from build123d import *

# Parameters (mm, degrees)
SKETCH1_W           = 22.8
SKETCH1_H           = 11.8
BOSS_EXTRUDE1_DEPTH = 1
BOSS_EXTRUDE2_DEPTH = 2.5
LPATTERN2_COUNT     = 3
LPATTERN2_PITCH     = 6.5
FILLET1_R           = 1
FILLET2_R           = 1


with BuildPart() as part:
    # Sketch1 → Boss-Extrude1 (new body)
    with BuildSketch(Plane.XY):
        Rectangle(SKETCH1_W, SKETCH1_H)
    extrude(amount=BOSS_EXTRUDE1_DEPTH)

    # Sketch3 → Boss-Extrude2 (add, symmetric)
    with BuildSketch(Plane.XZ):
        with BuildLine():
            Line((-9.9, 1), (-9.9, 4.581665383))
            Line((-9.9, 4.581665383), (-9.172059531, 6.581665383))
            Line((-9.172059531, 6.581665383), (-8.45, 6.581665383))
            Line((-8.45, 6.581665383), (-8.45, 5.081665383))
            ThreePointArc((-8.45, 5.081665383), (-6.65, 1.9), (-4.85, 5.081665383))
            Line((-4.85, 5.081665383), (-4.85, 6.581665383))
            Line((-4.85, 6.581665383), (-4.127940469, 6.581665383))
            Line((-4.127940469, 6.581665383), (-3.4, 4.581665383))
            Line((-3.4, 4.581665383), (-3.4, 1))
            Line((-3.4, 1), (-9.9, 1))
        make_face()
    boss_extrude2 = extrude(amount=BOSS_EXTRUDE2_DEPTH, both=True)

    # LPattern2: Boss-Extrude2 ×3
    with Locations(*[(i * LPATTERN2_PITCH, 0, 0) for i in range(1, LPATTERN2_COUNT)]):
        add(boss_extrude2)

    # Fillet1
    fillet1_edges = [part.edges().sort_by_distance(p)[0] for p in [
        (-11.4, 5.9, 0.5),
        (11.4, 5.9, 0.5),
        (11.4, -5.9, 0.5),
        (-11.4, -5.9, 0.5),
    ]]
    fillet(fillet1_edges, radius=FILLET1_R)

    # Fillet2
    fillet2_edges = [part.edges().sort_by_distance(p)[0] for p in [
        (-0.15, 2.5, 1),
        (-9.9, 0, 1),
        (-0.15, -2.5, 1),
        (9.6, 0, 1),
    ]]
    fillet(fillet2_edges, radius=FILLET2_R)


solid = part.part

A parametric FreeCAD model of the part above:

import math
import FreeCAD as App
import Part
import Sketcher
Q = App.Units.Quantity


def edges_at(feature, points):
    """Names of the edges that pass closest to the given points."""
    edges = feature.Shape.Edges
    near = lambda p: min(range(len(edges)), key=lambda i: edges[i].distToShape(Part.Vertex(*p))[0])
    return sorted({f"Edge{near(p) + 1}" for p in points})


def add_polygon(sketch, points):
    """Adds a closed chain of lines whose ends are joined by coincident constraints."""
    first, n = sketch.GeometryCount, len(points)
    for a, b in zip(points, points[1:] + points[:1]):
        sketch.addGeometry(Part.LineSegment(App.Vector(*a, 0), App.Vector(*b, 0)), False)
    for i in range(n):
        sketch.addConstraint(Sketcher.Constraint("Coincident", first + i, 2, first + (i + 1) % n, 1))

doc = App.newDocument("Part")
body = doc.addObject("PartDesign::Body", "Body")

# Sketch on XY plane
sketch1 = body.newObject("Sketcher::SketchObject", "Sketch")
sketch1.AttachmentSupport = (doc.getObject("XY_Plane"), [""])
sketch1.MapMode = "FlatFace"
add_polygon(sketch1, [(-11, 6), (-11, -6), (11, -6), (11, 6)])  # lines 0-3
sketch1.addConstraint(Sketcher.Constraint("Vertical", 0))
sketch1.addConstraint(Sketcher.Constraint("Horizontal", 1))
sketch1.addConstraint(Sketcher.Constraint("Vertical", 2))
sketch1.addConstraint(Sketcher.Constraint("Horizontal", 3))
sketch1.addConstraint(Sketcher.Constraint("Symmetric", 0, 2, 2, 2, -1, 1))
sketch1.addConstraint(Sketcher.Constraint("DistanceX", 1, 1, 1, 2, Q("22.8 mm")))
sketch1.addConstraint(Sketcher.Constraint("DistanceY", 0, 2, 0, 1, Q("11.8 mm")))
pad1 = body.newObject("PartDesign::Pad", "Pad")
pad1.Profile = sketch1
pad1.Length = 1

# Sketch on XZ plane
sketch2 = body.newObject("Sketcher::SketchObject", "Sketch001")
sketch2.AttachmentSupport = (doc.getObject("XZ_Plane"), [""])
sketch2.MapMode = "FlatFace"
sketch2.addGeometry(Part.LineSegment(App.Vector(-9.9, 4.6, 0), App.Vector(-9.9, 1, 0)), False)
sketch2.addGeometry(Part.LineSegment(App.Vector(-9.9, 1, 0), App.Vector(-3.4, 1, 0)), False)
sketch2.addGeometry(Part.LineSegment(App.Vector(-3.4, 1, 0), App.Vector(-3.4, 4.6, 0)), False)
sketch2.addGeometry(Part.LineSegment(App.Vector(-3.4, 4.6, 0), App.Vector(-4.1, 6.6, 0)), False)
sketch2.addGeometry(Part.LineSegment(App.Vector(-4.1, 6.6, 0), App.Vector(-4.8, 6.6, 0)), False)
sketch2.addGeometry(Part.LineSegment(App.Vector(-4.8, 6.6, 0), App.Vector(-4.8, 5.1, 0)), False)
sketch2.addGeometry(Part.ArcOfCircle(Part.Circle(App.Vector(-6.7, 4, 0), App.Vector(0, 0, 1), 2.1), math.radians(149), math.radians(391)), False)
sketch2.addGeometry(Part.LineSegment(App.Vector(-8.4, 5.1, 0), App.Vector(-8.4, 6.6, 0)), False)
sketch2.addGeometry(Part.LineSegment(App.Vector(-8.4, 6.6, 0), App.Vector(-9.2, 6.6, 0)), False)
sketch2.addGeometry(Part.LineSegment(App.Vector(-9.2, 6.6, 0), App.Vector(-9.9, 4.6, 0)), False)
sketch2.addConstraint(Sketcher.Constraint("Coincident", 0, 2, 1, 1))
sketch2.addConstraint(Sketcher.Constraint("Coincident", 1, 2, 2, 1))
sketch2.addConstraint(Sketcher.Constraint("Coincident", 2, 2, 3, 1))
sketch2.addConstraint(Sketcher.Constraint("Coincident", 3, 2, 4, 1))
sketch2.addConstraint(Sketcher.Constraint("Coincident", 4, 2, 5, 1))
sketch2.addConstraint(Sketcher.Constraint("Coincident", 5, 2, 6, 2))
sketch2.addConstraint(Sketcher.Constraint("Coincident", 6, 1, 7, 1))
sketch2.addConstraint(Sketcher.Constraint("Coincident", 7, 2, 8, 1))
sketch2.addConstraint(Sketcher.Constraint("Coincident", 8, 2, 9, 1))
sketch2.addConstraint(Sketcher.Constraint("Coincident", 9, 2, 0, 1))
sketch2.addConstraint(Sketcher.Constraint("Vertical", 0))
sketch2.addConstraint(Sketcher.Constraint("Horizontal", 1))
sketch2.addConstraint(Sketcher.Constraint("Vertical", 2))
sketch2.addConstraint(Sketcher.Constraint("Horizontal", 4))
sketch2.addConstraint(Sketcher.Constraint("Vertical", 5))
sketch2.addConstraint(Sketcher.Constraint("Vertical", 7))
sketch2.addConstraint(Sketcher.Constraint("Horizontal", 8))
sketch2.addConstraint(Sketcher.Constraint("Horizontal", 5, 2, 6, 1))
sketch2.addConstraint(Sketcher.Constraint("Horizontal", 4, 2, 7, 2))
sketch2.addConstraint(Sketcher.Constraint("Horizontal", 2, 2, 9, 2))
sketch2.addConstraint(Sketcher.Constraint("Equal", 4, 8))
sketch2.addConstraint(Sketcher.Constraint("Equal", 3, 9))
sketch2.addConstraint(Sketcher.Constraint("Radius", 6, Q("2.1 mm")))
sketch2.addConstraint(Sketcher.Constraint("Angle", 3, Q("110 deg")))
sketch2.addConstraint(Sketcher.Constraint("DistanceX", 1, 1, 1, 2, Q("6.5 mm")))
sketch2.addConstraint(Sketcher.Constraint("DistanceY", 5, 2, 5, 1, Q("1.5 mm")))
sketch2.addConstraint(Sketcher.Constraint("DistanceY", -1, 1, 6, 3, Q("4 mm")))
sketch2.addConstraint(Sketcher.Constraint("DistanceY", -1, 1, 0, 2, Q("1 mm")))
sketch2.addConstraint(Sketcher.Constraint("DistanceY", 2, 2, 3, 2, Q("2 mm")))
sketch2.addConstraint(Sketcher.Constraint("DistanceX", 0, 2, -1, 1, Q("9.9 mm")))
sketch2.addConstraint(Sketcher.Constraint("DistanceX", 6, 3, 4, 2, Q("1.8 mm")))
pad2 = body.newObject("PartDesign::Pad", "Pad001")
pad2.Profile = sketch2
pad2.Length = 5
pad2.Midplane = True
doc.recompute()

linearpattern = body.newObject("PartDesign::LinearPattern", "LinearPattern")
linearpattern.Originals = [pad2]
linearpattern.Direction = (doc.getObject("X_Axis"), [""])
linearpattern.Mode = "offset"
linearpattern.Offset = 6.5
linearpattern.Occurrences = 3
body.Tip = linearpattern
doc.recompute()

fillet = body.newObject("PartDesign::Fillet", "Fillet")
fillet.Base = (linearpattern, edges_at(linearpattern, [
    (-11.4, 5.9, 0.5),
    (11.4, 5.9, 0.5),
    (11.4, -5.9, 0.5),
    (-11.4, -5.9, 0.5),
]))
fillet.Radius = 1
doc.recompute()

fillet2 = body.newObject("PartDesign::Fillet", "Fillet001")
fillet2.Base = (fillet, edges_at(fillet, [
    (-0.15, 2.5, 1),
    (-9.9, 0, 1),
    (-0.15, -2.5, 1),
    (9.6, 0, 1),
]))
fillet2.Radius = 1

doc.recompute()
